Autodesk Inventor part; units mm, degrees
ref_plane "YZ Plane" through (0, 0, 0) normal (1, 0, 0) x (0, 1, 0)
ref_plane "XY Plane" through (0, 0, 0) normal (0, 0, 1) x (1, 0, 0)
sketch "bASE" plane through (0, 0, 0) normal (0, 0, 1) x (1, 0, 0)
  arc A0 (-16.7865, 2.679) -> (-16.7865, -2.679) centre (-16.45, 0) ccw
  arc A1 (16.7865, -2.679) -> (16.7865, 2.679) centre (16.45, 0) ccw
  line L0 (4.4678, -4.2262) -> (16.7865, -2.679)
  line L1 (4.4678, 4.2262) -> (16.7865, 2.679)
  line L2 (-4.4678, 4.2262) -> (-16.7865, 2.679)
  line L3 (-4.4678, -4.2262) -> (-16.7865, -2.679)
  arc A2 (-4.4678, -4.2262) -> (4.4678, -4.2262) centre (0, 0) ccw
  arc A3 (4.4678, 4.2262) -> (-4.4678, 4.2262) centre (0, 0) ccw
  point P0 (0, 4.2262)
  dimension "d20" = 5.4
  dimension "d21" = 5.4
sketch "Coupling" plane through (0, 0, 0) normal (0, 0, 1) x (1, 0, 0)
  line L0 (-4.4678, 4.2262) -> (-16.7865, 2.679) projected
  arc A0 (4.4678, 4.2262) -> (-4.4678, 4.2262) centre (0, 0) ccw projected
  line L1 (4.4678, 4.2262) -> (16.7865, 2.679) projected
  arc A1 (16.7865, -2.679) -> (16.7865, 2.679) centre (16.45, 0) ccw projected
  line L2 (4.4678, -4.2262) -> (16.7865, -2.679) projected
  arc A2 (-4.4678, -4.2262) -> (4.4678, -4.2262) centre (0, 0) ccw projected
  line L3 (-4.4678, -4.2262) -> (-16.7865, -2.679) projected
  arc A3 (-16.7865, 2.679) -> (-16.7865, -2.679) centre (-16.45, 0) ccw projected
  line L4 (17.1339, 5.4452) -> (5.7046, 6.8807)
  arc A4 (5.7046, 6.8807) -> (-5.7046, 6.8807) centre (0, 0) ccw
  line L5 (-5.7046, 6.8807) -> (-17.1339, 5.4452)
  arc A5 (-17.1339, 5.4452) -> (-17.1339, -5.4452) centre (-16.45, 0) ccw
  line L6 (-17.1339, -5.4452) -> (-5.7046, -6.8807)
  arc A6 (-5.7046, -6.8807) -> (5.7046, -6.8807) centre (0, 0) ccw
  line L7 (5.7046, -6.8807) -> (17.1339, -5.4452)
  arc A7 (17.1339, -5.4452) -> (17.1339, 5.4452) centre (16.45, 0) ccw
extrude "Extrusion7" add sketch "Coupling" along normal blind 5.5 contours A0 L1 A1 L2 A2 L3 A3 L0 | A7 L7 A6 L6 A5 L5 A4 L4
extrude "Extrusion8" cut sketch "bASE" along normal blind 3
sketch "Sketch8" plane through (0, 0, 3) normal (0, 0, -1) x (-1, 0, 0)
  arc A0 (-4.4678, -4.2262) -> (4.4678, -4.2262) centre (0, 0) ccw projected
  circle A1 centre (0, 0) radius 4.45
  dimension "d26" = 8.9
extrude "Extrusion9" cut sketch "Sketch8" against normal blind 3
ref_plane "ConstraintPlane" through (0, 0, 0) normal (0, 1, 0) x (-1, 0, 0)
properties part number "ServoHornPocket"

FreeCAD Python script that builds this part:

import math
import FreeCAD as App
import Part
import Sketcher

V = App.Vector
Q = App.Units.Quantity

doc = App.newDocument("Part")
body = doc.addObject("PartDesign::Body", "Body")

sketch1 = doc.addObject("Sketcher::SketchObject", "Sketch")
body.addObject(sketch1)
sketch1.AttachmentSupport = (doc.XY_Plane, [""])
sketch1.MapMode = "FlatFace"
sketch1.addGeometry(Part.ArcOfCircle(Part.Circle(V(16, 0, 0), V(0, 0, 1), 5), math.radians(-83), math.radians(83)), False)
sketch1.addGeometry(Part.LineSegment(V(17, 5, 0), V(6, 7, 0)), False)
sketch1.addGeometry(Part.ArcOfCircle(Part.Circle(V(0, 0, 0), V(0, 0, 1), 9), math.radians(50), math.radians(130)), False)
sketch1.addGeometry(Part.LineSegment(V(-6, 7, 0), V(-17, 5, 0)), False)
sketch1.addGeometry(Part.ArcOfCircle(Part.Circle(V(-16, 0, 0), V(0, 0, 1), 5), math.radians(97), math.radians(263)), False)
sketch1.addGeometry(Part.LineSegment(V(-17, -5, 0), V(-6, -7, 0)), False)
sketch1.addGeometry(Part.ArcOfCircle(Part.Circle(V(0, 0, 0), V(0, 0, 1), 9), math.radians(-130), math.radians(-50)), False)
sketch1.addGeometry(Part.LineSegment(V(6, -7, 0), V(17, -5, 0)), False)
sketch1.addConstraint(Sketcher.Constraint("Tangent", 0, 2, 1, 1))
sketch1.addConstraint(Sketcher.Constraint("Coincident", 1, 2, 2, 1))
sketch1.addConstraint(Sketcher.Constraint("Coincident", 2, 2, 3, 1))
sketch1.addConstraint(Sketcher.Constraint("Tangent", 3, 2, 4, 1))
sketch1.addConstraint(Sketcher.Constraint("Tangent", 4, 2, 5, 1))
sketch1.addConstraint(Sketcher.Constraint("Coincident", 5, 2, 6, 1))
sketch1.addConstraint(Sketcher.Constraint("Coincident", 6, 2, 7, 1))
sketch1.addConstraint(Sketcher.Constraint("Tangent", 7, 2, 0, 1))
sketch1.addConstraint(Sketcher.Constraint("Coincident", 2, 3, -1, 1))
sketch1.addConstraint(Sketcher.Constraint("Coincident", 6, 3, -1, 1))
sketch1.addConstraint(Sketcher.Constraint("Equal", 0, 4))
sketch1.addConstraint(Sketcher.Constraint("Equal", 2, 6))
sketch1.addConstraint(Sketcher.Constraint("Symmetric", 0, 3, 4, 3, -1, 1))
sketch1.addConstraint(Sketcher.Constraint("Symmetric", 0, 2, 3, 2, -2))
sketch1.addConstraint(Sketcher.Constraint("Parallel", 1, 5))
sketch1.addConstraint(Sketcher.Constraint("Parallel", 3, 7))
sketch1.addConstraint(Sketcher.Constraint("Radius", 0, Q("5.488 mm")))
sketch1.addConstraint(Sketcher.Constraint("Radius", 2, Q("8.938 mm")))
sketch1.addConstraint(Sketcher.Constraint("DistanceX", 4, 3, 0, 3, Q("32.9 mm")))
sketch1.addConstraint(Sketcher.Constraint("Distance", 1, Q("11.519 mm")))
pad1 = doc.addObject("PartDesign::Pad", "Pad")
body.addObject(pad1)
pad1.Profile = sketch1
pad1.Length = 5.5

sketch2 = doc.addObject("Sketcher::SketchObject", "Sketch001")
body.addObject(sketch2)
sketch2.AttachmentSupport = (doc.XY_Plane, [""])
sketch2.MapMode = "FlatFace"
sketch2.addGeometry(Part.LineSegment(V(-4.4678, 4.2262, 0), V(-16.7865, 2.679, 0)), False)
sketch2.addGeometry(Part.ArcOfCircle(Part.Circle(V(-16.45, 0, 0), V(0, 0, 1), 2.700051), math.radians(97.159233), math.radians(262.840767)), False)
sketch2.addGeometry(Part.LineSegment(V(-16.7865, -2.679, 0), V(-4.4678, -4.2262, 0)), False)
sketch2.addGeometry(Part.ArcOfCircle(Part.Circle(V(0, 0, 0), V(0, 0, 1), 6.14996), math.radians(-136.591799), math.radians(-43.408201)), False)
sketch2.addGeometry(Part.LineSegment(V(4.4678, -4.2262, 0), V(16.7865, -2.679, 0)), False)
sketch2.addGeometry(Part.ArcOfCircle(Part.Circle(V(16.45, 0, 0), V(0, 0, 1), 2.700051), math.radians(-82.840767), math.radians(82.840767)), False)
sketch2.addGeometry(Part.LineSegment(V(16.7865, 2.679, 0), V(4.4678, 4.2262, 0)), False)
sketch2.addGeometry(Part.ArcOfCircle(Part.Circle(V(0, 0, 0), V(0, 0, 1), 6.14996), math.radians(43.408201), math.radians(136.591799)), False)
sketch2.addConstraint(Sketcher.Constraint("Coincident", 0, 2, 1, 1))
sketch2.addConstraint(Sketcher.Constraint("Coincident", 1, 2, 2, 1))
sketch2.addConstraint(Sketcher.Constraint("Coincident", 2, 2, 3, 1))
sketch2.addConstraint(Sketcher.Constraint("Coincident", 3, 2, 4, 1))
sketch2.addConstraint(Sketcher.Constraint("Coincident", 4, 2, 5, 1))
sketch2.addConstraint(Sketcher.Constraint("Coincident", 5, 2, 6, 1))
sketch2.addConstraint(Sketcher.Constraint("Coincident", 6, 2, 7, 1))
sketch2.addConstraint(Sketcher.Constraint("Coincident", 7, 2, 0, 1))
sketch2.addConstraint(Sketcher.Constraint("Coincident", 3, 3, -1, 1))
sketch2.addConstraint(Sketcher.Constraint("Coincident", 7, 3, -1, 1))
sketch2.addConstraint(Sketcher.Constraint("PointOnObject", 1, 3, -1))
sketch2.addConstraint(Sketcher.Constraint("PointOnObject", 5, 3, -1))
sketch2.addConstraint(Sketcher.Constraint("Radius", 1, Q("2.7 mm")))
sketch2.addConstraint(Sketcher.Constraint("Radius", 5, Q("2.7 mm")))
sketch2.addConstraint(Sketcher.Constraint("Radius", 3, Q("6.15 mm")))
sketch2.addConstraint(Sketcher.Constraint("Radius", 7, Q("6.15 mm")))
sketch2.addConstraint(Sketcher.Constraint("DistanceX", 1, 3, 5, 3, Q("32.9 mm")))
sketch2.addConstraint(Sketcher.Constraint("DistanceX", 1, 3, -1, 1, Q("16.45 mm")))
sketch2.addConstraint(Sketcher.Constraint("DistanceY", -1, 1, 0, 2, Q("2.679 mm")))
sketch2.addConstraint(Sketcher.Constraint("DistanceY", 1, 2, -1, 1, Q("2.679 mm")))
sketch2.addConstraint(Sketcher.Constraint("DistanceY", 4, 2, -1, 1, Q("2.679 mm")))
sketch2.addConstraint(Sketcher.Constraint("DistanceY", -1, 1, 5, 2, Q("2.679 mm")))
sketch2.addConstraint(Sketcher.Constraint("Distance", 0, Q("12.4155 mm")))
sketch2.addConstraint(Sketcher.Constraint("Distance", 2, Q("12.4155 mm")))
sketch2.addConstraint(Sketcher.Constraint("Distance", 4, Q("12.4155 mm")))
sketch2.addConstraint(Sketcher.Constraint("Distance", 6, Q("12.4155 mm")))
pocket1 = doc.addObject("PartDesign::Pocket", "Pocket")
body.addObject(pocket1)
pocket1.Profile = sketch2
pocket1.Length = 3
pocket1.Reversed = True

sketch3 = doc.addObject("Sketcher::SketchObject", "Sketch002")
body.addObject(sketch3)
sketch3.AttachmentSupport = (doc.XY_Plane, [""])
sketch3.MapMode = "FlatFace"
sketch3.AttachmentOffset = App.Placement(V(0, 0, 3), App.Rotation())
sketch3.addGeometry(Part.Circle(V(0, 0, 0), V(0, 0, 1), 4.5), False)
sketch3.addConstraint(Sketcher.Constraint("Coincident", 0, 3, -1, 1))
sketch3.addConstraint(Sketcher.Constraint("Diameter", 0, Q("8.9 mm")))
pocket2 = doc.addObject("PartDesign::Pocket", "Pocket001")
body.addObject(pocket2)
pocket2.Profile = sketch3
pocket2.Length = 3
pocket2.Reversed = True

doc.recompute()
